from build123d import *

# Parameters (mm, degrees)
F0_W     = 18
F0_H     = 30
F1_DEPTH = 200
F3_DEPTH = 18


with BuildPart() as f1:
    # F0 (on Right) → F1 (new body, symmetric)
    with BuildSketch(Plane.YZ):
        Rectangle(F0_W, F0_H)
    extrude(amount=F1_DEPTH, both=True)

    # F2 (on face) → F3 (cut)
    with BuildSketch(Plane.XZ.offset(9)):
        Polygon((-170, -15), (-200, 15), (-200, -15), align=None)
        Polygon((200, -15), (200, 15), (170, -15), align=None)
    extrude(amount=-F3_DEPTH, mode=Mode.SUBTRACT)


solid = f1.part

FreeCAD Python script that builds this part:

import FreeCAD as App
import Part
import Sketcher
Q = App.Units.Quantity


def add_polygon(sketch, points):
    """Adds a closed chain of lines whose ends are joined by coincident constraints."""
    first, n = sketch.GeometryCount, len(points)
    for a, b in zip(points, points[1:] + points[:1]):
        sketch.addGeometry(Part.LineSegment(App.Vector(*a, 0), App.Vector(*b, 0)), False)
    for i in range(n):
        sketch.addConstraint(Sketcher.Constraint("Coincident", first + i, 2, first + (i + 1) % n, 1))

doc = App.newDocument("Part")
params = doc.addObject("Spreadsheet::Sheet", "Params")
for row, (alias, value) in enumerate([
    ("sketch1_width", "18 mm"),
    ("sketch1_height", "30 mm"),
    ("pad1_length", "400 mm"),
    ("sketch2_width", "30 mm"),
    ("pocket1_length", "18 mm"),
], start=1):
    params.set(f"A{row}", alias)
    params.set(f"B{row}", "=" + value)
    params.setAlias(f"B{row}", alias)

body = doc.addObject("PartDesign::Body", "Body")

sketch1 = body.newObject("Sketcher::SketchObject", "Sketch")
sketch1.AttachmentSupport = (doc.getObject("YZ_Plane"), [""])
sketch1.MapMode = "FlatFace"
add_polygon(sketch1, [(-9, 15), (-9, -15), (9, -15), (9, 15)])
sketch1.addConstraint(Sketcher.Constraint("Vertical", 0))
sketch1.addConstraint(Sketcher.Constraint("Horizontal", 1))
sketch1.addConstraint(Sketcher.Constraint("Vertical", 2))
sketch1.addConstraint(Sketcher.Constraint("Horizontal", 3))
sketch1.addConstraint(Sketcher.Constraint("Symmetric", 0, 2, 2, 2, -1, 1))
sketch1.addConstraint(Sketcher.Constraint("DistanceX", 1, 1, 1, 2, Q("18 mm")))
sketch1.addConstraint(Sketcher.Constraint("DistanceY", 0, 2, 0, 1, Q("30 mm")))
sketch1.setExpression("Constraints[9]", "Params.sketch1_width")
sketch1.setExpression("Constraints[10]", "Params.sketch1_height")
pad1 = body.newObject("PartDesign::Pad", "Pad")
pad1.Profile = sketch1
pad1.setExpression("Length", "Params.pad1_length")
pad1.Midplane = True

sketch2 = body.newObject("Sketcher::SketchObject", "Sketch001")
sketch2.AttachmentSupport = (doc.getObject("XZ_Plane"), [""])
sketch2.MapMode = "FlatFace"
sketch2.AttachmentOffset = App.Placement(App.Vector(0, 0, 9), App.Rotation())
add_polygon(sketch2, [(-170, -15), (-200, 15), (-200, -15)])
add_polygon(sketch2, [(200, -15), (200, 15), (170, -15)])
sketch2.addConstraint(Sketcher.Constraint("Vertical", 1))
sketch2.addConstraint(Sketcher.Constraint("Horizontal", 2))
sketch2.addConstraint(Sketcher.Constraint("Vertical", 3))
sketch2.addConstraint(Sketcher.Constraint("Horizontal", 5))
sketch2.addConstraint(Sketcher.Constraint("Symmetric", 1, 2, 3, 2, -1, 1))
sketch2.addConstraint(Sketcher.Constraint("Symmetric", 2, 2, 4, 2, -2))
sketch2.addConstraint(Sketcher.Constraint("Perpendicular", 0, 4))
sketch2.addConstraint(Sketcher.Constraint("Horizontal", 0, 2, 3, 2))
sketch2.addConstraint(Sketcher.Constraint("DistanceX", 2, 1, 2, 2, Q("30 mm")))
sketch2.addConstraint(Sketcher.Constraint("DistanceX", 0, 2, -1, 1, Q("200 mm")))
sketch2.setExpression("Constraints[14]", "Params.sketch2_width")
pocket1 = body.newObject("PartDesign::Pocket", "Pocket")
pocket1.Profile = sketch2
pocket1.setExpression("Length", "Params.pocket1_length")

doc.recompute()
